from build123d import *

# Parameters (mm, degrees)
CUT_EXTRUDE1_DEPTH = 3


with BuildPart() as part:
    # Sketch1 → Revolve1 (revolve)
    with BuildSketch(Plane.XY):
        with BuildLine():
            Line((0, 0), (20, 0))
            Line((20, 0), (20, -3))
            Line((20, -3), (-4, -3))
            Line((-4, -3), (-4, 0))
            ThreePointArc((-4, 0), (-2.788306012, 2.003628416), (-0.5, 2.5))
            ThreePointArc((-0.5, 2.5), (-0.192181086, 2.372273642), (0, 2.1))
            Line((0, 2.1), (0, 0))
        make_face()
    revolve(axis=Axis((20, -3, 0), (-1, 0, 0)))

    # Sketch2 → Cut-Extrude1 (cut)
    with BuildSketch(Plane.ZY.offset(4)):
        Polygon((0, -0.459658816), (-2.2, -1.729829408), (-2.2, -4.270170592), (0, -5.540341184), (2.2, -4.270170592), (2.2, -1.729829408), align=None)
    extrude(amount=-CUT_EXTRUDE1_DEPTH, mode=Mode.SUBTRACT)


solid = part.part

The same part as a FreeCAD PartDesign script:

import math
import FreeCAD as App
import Part
import Sketcher

V = App.Vector
Q = App.Units.Quantity

doc = App.newDocument("Part")
body = doc.addObject("PartDesign::Body", "Body")

# Sketch on XY plane
sketch1 = body.newObject("Sketcher::SketchObject", "Sketch")
sketch1.AttachmentSupport = (doc.getObject("XY_Plane"), [""])
sketch1.MapMode = "FlatFace"
sketch1.addGeometry([
    Part.LineSegment(V(20, 0, 0), V(0, 0, 0)),  # 0
    Part.LineSegment(V(0, 0, 0), V(0, 2.1, 0)),  # 1
    Part.ArcOfCircle(Part.Circle(V(-0.566998, 1.903752, 0), V(0, 0, 1), 0.6), math.radians(19.091603), math.radians(83.588781)),  # 2
    Part.ArcOfCircle(Part.Circle(V(-1.067841, -0.405023, 0), V(0, 0, 1), 2.96), math.radians(78.939923), math.radians(172.135432)),  # 3
    Part.LineSegment(V(-4, 0, 0), V(-4, -3, 0)),  # 4
    Part.LineSegment(V(-4, -3, 0), V(20, -3, 0)),  # 5
    Part.LineSegment(V(20, -3, 0), V(20, 0, 0)),  # 6
], False)
sketch1.addGeometry(Part.LineSegment(V(20, -3, 0), V(-4, -3, 0)), True)  # axis
sketch1.addConstraint([
    Sketcher.Constraint("Coincident", 0, 2, 1, 1),
    Sketcher.Constraint("Coincident", 1, 2, 2, 1),
    Sketcher.Constraint("Coincident", 2, 2, 3, 1),
    Sketcher.Constraint("Coincident", 3, 2, 4, 1),
    Sketcher.Constraint("Coincident", 4, 2, 5, 1),
    Sketcher.Constraint("Coincident", 5, 2, 6, 1),
    Sketcher.Constraint("Coincident", 6, 2, 0, 1),
    Sketcher.Constraint("Horizontal", 0),
    Sketcher.Constraint("Vertical", 1),
    Sketcher.Constraint("Vertical", 4),
    Sketcher.Constraint("Horizontal", 5),
    Sketcher.Constraint("Vertical", 6),
    Sketcher.Constraint("Horizontal", 7),
    Sketcher.Constraint("Coincident", 0, 2, -1, 1),
    Sketcher.Constraint("Coincident", 7, 1, 5, 2),
    Sketcher.Constraint("PointOnObject", 3, 2, -1),
    Sketcher.Constraint("Vertical", 3, 2, 7, 2),
    Sketcher.Constraint("Radius", 2, 0.6),
    Sketcher.Constraint("DistanceX", 0, 2, 0, 1, 20.0),
    Sketcher.Constraint("DistanceX", 5, 1, 5, 2, 24.0),
    Sketcher.Constraint("DistanceY", 4, 2, 4, 1, 3.0),
    Sketcher.Constraint("Radius", 3, 2.96),
    Sketcher.Constraint("DistanceY", 1, 1, 1, 2, 2.1),
    Sketcher.Constraint("DistanceX", 2, 2, -1, 1, 0.5),
    Sketcher.Constraint("DistanceY", -1, 1, 2, 2, 2.5),
])
revolution = body.newObject("PartDesign::Revolution", "Revolution")
revolution.Profile = sketch1
revolution.ReferenceAxis = (sketch1, ["Axis0"])
revolution.Angle = 360

# Sketch on YZ plane
sketch2 = body.newObject("Sketcher::SketchObject", "Sketch001")
sketch2.AttachmentSupport = (doc.getObject("YZ_Plane"), [""])
sketch2.MapMode = "FlatFace"
sketch2.AttachmentOffset = App.Placement(V(0, 0, -4), App.Rotation())
sketch2.addGeometry([
    Part.LineSegment(V(-0.459659, 0, 0), V(-1.729829, -2.2, 0)),  # 0
    Part.LineSegment(V(-1.729829, -2.2, 0), V(-4.270171, -2.2, 0)),  # 1
    Part.LineSegment(V(-4.270171, -2.2, 0), V(-5.540341, 0, 0)),  # 2
    Part.LineSegment(V(-5.540341, 0, 0), V(-4.270171, 2.2, 0)),  # 3
    Part.LineSegment(V(-4.270171, 2.2, 0), V(-1.729829, 2.2, 0)),  # 4
    Part.LineSegment(V(-1.729829, 2.2, 0), V(-0.459659, 0, 0)),  # 5
], False)
sketch2.addConstraint([
    Sketcher.Constraint("Coincident", 0, 2, 1, 1),
    Sketcher.Constraint("Coincident", 1, 2, 2, 1),
    Sketcher.Constraint("Coincident", 2, 2, 3, 1),
    Sketcher.Constraint("Coincident", 3, 2, 4, 1),
    Sketcher.Constraint("Coincident", 4, 2, 5, 1),
    Sketcher.Constraint("Coincident", 5, 2, 0, 1),
    Sketcher.Constraint("Horizontal", 1),
    Sketcher.Constraint("Horizontal", 4),
    Sketcher.Constraint("Symmetric", 1, 2, 3, 2, -1),
    Sketcher.Constraint("PointOnObject", 2, 2, -1),
    Sketcher.Constraint("PointOnObject", 5, 2, -1),
    Sketcher.Constraint("Parallel", 0, 3),
    Sketcher.Constraint("Parallel", 2, 5),
    Sketcher.Constraint("Angle", 0, Q("-120 deg")),
    Sketcher.Constraint("DistanceY", 0, 2, -1, 1, 2.2),
    Sketcher.Constraint("DistanceX", 1, 2, 1, 1, 2.540341),
    Sketcher.Constraint("DistanceX", 0, 2, -1, 1, 1.729829),
])
pocket1 = body.newObject("PartDesign::Pocket", "Pocket")
pocket1.Profile = sketch2
pocket1.Length = 3
pocket1.Reversed = True

doc.recompute()
